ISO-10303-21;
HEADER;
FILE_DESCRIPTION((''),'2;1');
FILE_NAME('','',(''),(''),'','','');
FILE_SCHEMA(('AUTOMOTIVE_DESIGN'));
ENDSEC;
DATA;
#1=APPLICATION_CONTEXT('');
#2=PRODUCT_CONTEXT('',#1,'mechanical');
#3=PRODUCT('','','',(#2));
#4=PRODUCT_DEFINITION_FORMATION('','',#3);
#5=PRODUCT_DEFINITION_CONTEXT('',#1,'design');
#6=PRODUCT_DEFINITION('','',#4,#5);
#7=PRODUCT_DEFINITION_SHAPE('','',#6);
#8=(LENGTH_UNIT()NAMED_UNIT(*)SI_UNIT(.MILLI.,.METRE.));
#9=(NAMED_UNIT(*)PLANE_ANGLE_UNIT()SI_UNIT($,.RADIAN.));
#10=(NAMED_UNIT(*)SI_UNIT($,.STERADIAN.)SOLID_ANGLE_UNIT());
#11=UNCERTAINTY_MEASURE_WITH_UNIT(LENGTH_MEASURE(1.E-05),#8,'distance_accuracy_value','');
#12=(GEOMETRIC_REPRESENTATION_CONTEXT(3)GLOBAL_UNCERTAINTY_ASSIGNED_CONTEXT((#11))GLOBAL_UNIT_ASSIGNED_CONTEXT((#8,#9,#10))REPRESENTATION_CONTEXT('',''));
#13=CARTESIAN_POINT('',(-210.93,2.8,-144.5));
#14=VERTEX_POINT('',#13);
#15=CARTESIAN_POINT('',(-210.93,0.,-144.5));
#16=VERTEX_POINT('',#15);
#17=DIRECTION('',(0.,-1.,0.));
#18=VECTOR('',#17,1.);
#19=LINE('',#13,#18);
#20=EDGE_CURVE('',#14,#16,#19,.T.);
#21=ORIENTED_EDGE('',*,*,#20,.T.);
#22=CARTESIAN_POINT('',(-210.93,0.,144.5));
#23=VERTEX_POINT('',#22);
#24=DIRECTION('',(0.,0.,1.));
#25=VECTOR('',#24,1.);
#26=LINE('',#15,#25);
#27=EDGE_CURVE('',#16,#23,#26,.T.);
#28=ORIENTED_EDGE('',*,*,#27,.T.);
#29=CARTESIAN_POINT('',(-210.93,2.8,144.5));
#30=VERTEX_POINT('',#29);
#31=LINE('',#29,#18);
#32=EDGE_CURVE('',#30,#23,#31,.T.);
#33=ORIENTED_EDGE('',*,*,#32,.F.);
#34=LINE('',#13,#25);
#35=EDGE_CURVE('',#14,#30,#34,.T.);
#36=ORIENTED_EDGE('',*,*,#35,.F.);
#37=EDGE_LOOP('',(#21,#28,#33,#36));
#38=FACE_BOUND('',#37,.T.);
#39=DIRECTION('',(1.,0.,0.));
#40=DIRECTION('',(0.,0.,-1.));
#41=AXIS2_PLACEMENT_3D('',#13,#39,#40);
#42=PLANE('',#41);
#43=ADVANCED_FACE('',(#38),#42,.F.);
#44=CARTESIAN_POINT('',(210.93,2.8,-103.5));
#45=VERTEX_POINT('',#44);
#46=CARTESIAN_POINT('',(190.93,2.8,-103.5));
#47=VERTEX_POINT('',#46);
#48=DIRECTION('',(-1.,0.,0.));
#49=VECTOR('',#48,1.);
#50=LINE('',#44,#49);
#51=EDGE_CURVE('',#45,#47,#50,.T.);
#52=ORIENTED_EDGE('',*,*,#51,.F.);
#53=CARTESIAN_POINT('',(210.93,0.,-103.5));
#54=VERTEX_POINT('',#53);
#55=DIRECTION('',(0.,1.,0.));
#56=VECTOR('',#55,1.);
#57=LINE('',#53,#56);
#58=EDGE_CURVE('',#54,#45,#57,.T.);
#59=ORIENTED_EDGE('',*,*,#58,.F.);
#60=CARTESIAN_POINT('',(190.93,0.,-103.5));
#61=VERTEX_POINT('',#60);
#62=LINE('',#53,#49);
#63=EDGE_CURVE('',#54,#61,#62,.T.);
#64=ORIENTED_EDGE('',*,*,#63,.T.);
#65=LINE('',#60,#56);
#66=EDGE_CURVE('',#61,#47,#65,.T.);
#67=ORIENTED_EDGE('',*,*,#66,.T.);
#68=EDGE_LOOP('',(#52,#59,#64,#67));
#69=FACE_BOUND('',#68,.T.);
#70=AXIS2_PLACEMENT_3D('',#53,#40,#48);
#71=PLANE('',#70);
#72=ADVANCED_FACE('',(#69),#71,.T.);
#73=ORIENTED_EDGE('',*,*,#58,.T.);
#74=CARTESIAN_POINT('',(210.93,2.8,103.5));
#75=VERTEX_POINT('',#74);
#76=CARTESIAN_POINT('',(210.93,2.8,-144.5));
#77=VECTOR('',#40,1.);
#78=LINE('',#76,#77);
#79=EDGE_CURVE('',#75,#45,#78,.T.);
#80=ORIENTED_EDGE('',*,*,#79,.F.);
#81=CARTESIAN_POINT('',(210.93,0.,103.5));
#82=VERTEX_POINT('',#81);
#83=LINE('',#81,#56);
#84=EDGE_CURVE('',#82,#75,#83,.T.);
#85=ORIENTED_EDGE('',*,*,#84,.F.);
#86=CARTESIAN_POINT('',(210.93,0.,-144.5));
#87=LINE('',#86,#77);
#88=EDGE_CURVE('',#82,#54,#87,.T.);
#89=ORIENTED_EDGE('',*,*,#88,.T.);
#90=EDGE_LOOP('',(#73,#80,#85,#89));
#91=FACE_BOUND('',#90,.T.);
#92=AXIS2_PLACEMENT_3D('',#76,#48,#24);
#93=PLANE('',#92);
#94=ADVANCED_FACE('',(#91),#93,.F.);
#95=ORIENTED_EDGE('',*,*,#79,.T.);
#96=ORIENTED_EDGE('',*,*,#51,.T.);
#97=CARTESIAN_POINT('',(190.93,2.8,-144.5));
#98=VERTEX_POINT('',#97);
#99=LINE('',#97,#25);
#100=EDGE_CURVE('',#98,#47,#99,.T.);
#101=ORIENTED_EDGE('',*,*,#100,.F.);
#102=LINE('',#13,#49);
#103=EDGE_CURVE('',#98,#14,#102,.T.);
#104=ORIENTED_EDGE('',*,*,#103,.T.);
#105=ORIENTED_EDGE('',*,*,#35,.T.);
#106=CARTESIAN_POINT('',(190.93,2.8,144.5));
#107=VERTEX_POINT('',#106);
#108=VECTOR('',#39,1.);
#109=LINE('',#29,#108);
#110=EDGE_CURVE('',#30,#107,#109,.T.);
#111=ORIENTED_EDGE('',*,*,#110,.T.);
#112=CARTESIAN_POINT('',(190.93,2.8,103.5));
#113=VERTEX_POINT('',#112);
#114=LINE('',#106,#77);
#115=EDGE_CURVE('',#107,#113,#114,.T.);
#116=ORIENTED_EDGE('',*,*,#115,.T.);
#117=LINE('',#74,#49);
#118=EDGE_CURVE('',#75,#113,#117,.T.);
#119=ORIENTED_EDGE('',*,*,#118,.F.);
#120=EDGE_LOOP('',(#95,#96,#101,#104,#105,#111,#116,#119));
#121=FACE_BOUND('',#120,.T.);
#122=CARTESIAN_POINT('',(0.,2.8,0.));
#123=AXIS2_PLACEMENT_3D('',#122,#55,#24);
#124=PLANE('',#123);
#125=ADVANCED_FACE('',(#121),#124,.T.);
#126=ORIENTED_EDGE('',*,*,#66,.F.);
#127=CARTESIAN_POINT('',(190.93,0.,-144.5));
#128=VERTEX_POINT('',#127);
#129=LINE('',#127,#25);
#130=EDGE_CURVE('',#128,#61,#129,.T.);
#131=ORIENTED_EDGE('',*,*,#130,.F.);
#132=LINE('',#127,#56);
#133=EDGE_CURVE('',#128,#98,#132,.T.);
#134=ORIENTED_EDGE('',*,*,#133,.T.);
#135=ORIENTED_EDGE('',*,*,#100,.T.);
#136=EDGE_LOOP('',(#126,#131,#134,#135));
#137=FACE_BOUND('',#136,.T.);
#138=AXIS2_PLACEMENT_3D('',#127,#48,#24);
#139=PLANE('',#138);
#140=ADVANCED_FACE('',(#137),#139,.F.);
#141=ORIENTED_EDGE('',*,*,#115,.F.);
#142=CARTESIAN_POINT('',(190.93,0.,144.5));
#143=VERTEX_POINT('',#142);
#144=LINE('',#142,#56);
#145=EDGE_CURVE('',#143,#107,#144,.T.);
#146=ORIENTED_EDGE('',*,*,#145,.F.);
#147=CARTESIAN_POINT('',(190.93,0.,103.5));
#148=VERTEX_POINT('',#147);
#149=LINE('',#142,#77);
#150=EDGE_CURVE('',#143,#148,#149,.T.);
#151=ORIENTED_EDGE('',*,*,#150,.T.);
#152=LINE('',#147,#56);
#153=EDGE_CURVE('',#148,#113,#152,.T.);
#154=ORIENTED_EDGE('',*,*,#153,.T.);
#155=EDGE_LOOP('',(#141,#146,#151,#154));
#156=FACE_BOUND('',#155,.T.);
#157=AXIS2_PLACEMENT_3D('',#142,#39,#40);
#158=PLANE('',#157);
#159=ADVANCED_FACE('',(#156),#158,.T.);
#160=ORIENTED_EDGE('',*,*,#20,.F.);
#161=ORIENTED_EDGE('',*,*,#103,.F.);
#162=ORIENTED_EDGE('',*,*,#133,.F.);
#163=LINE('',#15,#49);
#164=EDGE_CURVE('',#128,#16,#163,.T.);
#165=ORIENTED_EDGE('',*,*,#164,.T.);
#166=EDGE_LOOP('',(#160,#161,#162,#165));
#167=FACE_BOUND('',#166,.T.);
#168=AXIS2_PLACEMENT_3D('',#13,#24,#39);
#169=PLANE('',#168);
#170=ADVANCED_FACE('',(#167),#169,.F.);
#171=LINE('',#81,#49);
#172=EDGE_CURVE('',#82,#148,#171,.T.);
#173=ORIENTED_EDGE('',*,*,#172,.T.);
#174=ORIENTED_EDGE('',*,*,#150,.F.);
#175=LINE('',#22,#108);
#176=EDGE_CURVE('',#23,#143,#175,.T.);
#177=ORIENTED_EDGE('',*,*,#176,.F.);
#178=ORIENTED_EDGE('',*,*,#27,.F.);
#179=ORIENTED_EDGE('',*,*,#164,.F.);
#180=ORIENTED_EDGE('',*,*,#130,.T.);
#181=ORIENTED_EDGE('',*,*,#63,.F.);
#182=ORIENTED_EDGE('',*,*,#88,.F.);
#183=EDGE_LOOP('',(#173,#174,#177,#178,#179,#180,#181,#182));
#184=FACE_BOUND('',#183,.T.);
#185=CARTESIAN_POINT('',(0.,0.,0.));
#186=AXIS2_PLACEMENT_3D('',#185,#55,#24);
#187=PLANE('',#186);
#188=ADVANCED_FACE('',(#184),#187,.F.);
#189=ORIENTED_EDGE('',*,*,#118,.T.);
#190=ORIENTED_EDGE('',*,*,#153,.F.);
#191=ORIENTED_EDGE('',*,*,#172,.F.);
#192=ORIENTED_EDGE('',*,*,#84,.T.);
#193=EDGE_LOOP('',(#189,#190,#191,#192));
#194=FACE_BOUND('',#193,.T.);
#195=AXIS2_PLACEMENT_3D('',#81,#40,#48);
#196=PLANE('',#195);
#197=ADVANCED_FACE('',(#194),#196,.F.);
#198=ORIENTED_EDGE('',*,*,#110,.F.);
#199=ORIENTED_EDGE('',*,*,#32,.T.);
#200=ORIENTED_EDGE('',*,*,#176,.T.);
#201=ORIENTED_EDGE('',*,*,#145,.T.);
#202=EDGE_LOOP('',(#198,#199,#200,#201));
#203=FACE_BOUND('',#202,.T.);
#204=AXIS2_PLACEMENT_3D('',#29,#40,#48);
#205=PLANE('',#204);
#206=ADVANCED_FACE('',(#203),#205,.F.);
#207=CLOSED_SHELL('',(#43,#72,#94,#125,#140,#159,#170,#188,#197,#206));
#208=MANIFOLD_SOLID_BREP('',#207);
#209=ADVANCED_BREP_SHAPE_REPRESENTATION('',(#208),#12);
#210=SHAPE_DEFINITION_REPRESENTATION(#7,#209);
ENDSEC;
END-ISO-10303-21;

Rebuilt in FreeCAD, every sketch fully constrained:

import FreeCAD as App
import Part
import Sketcher
Q = App.Units.Quantity


def add_polygon(sketch, points):
    """Adds a closed chain of lines whose ends are joined by coincident constraints."""
    first, n = sketch.GeometryCount, len(points)
    for a, b in zip(points, points[1:] + points[:1]):
        sketch.addGeometry(Part.LineSegment(App.Vector(*a, 0), App.Vector(*b, 0)), False)
    for i in range(n):
        sketch.addConstraint(Sketcher.Constraint("Coincident", first + i, 2, first + (i + 1) % n, 1))

doc = App.newDocument("Part")
params = doc.addObject("Spreadsheet::Sheet", "Params")
for row, (alias, value) in enumerate([
    ("sketch1_height", "289 mm"),
    ("sketch1_width", "421.86 mm"),
    ("pad1_length", "2.8 mm"),
    ("sketch2_width", "20 mm"),
    ("sketch2_height", "41 mm"),
    ("pocket1_length", "2.8 mm"),
], start=1):
    params.set(f"A{row}", alias)
    params.set(f"B{row}", "=" + value)
    params.setAlias(f"B{row}", alias)

body = doc.addObject("PartDesign::Body", "Body")

sketch1 = body.newObject("Sketcher::SketchObject", "Sketch")
sketch1.AttachmentSupport = (doc.getObject("XZ_Plane"), [""])
sketch1.MapMode = "FlatFace"
add_polygon(sketch1, [(-211, -144), (-211, 144), (211, 144), (211, -144)])
sketch1.addConstraint([
    Sketcher.Constraint("Vertical", 0),
    Sketcher.Constraint("Horizontal", 1),
    Sketcher.Constraint("Vertical", 2),
    Sketcher.Constraint("Horizontal", 3),
    Sketcher.Constraint("Symmetric", 0, 2, 2, 2, -1, 1),
    Sketcher.Constraint("DistanceY", 0, 1, 0, 2, Q("289 mm")),
    Sketcher.Constraint("DistanceX", 1, 1, 1, 2, Q("421.86 mm")),
])
sketch1.setExpression("Constraints[9]", "Params.sketch1_height")
sketch1.setExpression("Constraints[10]", "Params.sketch1_width")
pad1 = body.newObject("PartDesign::Pad", "Pad")
pad1.Profile = sketch1
pad1.setExpression("Length", "Params.pad1_length")
pad1.Reversed = True

sketch2 = body.newObject("Sketcher::SketchObject", "Sketch001")
sketch2.AttachmentSupport = (doc.getObject("XZ_Plane"), [""])
sketch2.MapMode = "FlatFace"
sketch2.AttachmentOffset = App.Placement(App.Vector(0, 0, -2.8), App.Rotation())
add_polygon(sketch2, [(191, 104), (191, 144), (211, 144), (211, 104)])
add_polygon(sketch2, [(191, -144), (191, -104), (211, -104), (211, -144)])
sketch2.addConstraint([
    Sketcher.Constraint("Vertical", 0),
    Sketcher.Constraint("Horizontal", 1),
    Sketcher.Constraint("Vertical", 2),
    Sketcher.Constraint("Horizontal", 3),
    Sketcher.Constraint("Vertical", 4),
    Sketcher.Constraint("Horizontal", 5),
    Sketcher.Constraint("Vertical", 6),
    Sketcher.Constraint("Horizontal", 7),
    Sketcher.Constraint("Symmetric", 3, 2, 4, 2, -1),
    Sketcher.Constraint("Symmetric", 1, 2, 6, 2, -1),
    Sketcher.Constraint("DistanceX", 1, 1, 1, 2, Q("20 mm")),
    Sketcher.Constraint("DistanceY", 0, 1, 0, 2, Q("41 mm")),
    Sketcher.Constraint("DistanceY", 4, 2, 3, 2, Q("207 mm")),
    Sketcher.Constraint("DistanceX", -1, 1, 0, 2, Q("190.93 mm")),
])
sketch2.setExpression("Constraints[18]", "Params.sketch2_width")
sketch2.setExpression("Constraints[19]", "Params.sketch2_height")
pocket1 = body.newObject("PartDesign::Pocket", "Pocket")
pocket1.Profile = sketch2
pocket1.setExpression("Length", "Params.pocket1_length")
pocket1.Reversed = True

doc.recompute()
